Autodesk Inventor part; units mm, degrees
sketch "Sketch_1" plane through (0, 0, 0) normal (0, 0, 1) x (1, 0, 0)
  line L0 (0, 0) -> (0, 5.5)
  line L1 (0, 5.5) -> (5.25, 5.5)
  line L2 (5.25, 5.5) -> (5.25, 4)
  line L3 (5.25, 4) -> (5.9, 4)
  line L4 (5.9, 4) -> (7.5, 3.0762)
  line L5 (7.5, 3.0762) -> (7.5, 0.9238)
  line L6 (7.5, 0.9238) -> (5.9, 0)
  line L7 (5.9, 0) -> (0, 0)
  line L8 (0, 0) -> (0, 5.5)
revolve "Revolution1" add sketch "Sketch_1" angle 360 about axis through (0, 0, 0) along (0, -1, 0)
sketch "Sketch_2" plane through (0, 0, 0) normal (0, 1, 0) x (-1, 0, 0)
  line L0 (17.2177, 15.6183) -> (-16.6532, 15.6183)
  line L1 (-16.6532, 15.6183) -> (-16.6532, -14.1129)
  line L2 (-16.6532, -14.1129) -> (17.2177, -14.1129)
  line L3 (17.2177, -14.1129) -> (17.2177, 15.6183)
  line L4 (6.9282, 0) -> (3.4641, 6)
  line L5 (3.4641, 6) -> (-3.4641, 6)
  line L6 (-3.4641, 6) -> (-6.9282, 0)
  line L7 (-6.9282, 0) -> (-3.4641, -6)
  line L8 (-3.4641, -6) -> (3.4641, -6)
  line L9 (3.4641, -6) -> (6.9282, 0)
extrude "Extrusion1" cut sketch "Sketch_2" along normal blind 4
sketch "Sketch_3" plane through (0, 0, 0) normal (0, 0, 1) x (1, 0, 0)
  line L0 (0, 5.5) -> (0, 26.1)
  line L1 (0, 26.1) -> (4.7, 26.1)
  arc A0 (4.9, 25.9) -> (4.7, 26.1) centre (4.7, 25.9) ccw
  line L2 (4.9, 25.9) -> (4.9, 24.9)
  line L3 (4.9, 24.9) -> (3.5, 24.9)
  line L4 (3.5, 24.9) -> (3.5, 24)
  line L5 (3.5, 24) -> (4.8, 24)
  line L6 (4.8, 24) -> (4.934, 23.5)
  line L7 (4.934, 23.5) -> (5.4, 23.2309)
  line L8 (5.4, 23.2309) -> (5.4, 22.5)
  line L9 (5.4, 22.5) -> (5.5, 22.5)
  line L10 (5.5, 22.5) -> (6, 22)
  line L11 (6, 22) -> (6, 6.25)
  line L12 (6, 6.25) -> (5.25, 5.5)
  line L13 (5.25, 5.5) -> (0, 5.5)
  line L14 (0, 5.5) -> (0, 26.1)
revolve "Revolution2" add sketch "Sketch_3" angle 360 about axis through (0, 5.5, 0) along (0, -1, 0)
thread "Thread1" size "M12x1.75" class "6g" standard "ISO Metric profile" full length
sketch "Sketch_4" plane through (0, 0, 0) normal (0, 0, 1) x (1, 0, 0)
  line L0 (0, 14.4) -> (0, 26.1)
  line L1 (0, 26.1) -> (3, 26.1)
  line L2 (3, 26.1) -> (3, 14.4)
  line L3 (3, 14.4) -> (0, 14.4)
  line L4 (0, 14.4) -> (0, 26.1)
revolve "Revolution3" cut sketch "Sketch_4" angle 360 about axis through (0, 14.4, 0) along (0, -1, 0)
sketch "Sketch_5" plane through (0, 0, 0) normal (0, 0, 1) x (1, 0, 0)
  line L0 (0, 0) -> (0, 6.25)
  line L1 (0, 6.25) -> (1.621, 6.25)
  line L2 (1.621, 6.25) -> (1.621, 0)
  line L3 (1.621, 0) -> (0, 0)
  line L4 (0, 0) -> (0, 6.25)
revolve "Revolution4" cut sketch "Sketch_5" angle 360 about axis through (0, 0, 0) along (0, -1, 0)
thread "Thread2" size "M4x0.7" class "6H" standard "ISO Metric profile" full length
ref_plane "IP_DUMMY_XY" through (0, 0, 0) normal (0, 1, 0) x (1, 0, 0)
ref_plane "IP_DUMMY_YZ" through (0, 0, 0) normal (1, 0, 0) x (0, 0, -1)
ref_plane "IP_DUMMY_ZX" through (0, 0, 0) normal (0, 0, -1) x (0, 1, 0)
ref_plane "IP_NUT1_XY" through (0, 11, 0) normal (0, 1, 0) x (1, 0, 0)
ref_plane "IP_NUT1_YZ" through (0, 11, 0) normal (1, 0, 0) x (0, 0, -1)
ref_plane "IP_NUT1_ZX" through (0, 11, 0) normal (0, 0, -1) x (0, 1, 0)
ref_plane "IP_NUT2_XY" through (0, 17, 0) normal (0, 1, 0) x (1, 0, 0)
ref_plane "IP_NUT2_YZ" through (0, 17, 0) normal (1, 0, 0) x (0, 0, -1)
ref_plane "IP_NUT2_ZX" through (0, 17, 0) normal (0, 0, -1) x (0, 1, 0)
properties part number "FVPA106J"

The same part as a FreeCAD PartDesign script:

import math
import FreeCAD as App
import Part
import Sketcher

V = App.Vector
Q = App.Units.Quantity

doc = App.newDocument("Part")
params = doc.addObject("Spreadsheet::Sheet", "Params")
for row, (alias, value) in enumerate([
    ("sketch1_width", "5.9 mm"),
    ("sketch1_height", "5.5 mm"),
    ("sketch1_height2", "1.5 mm"),
    ("sketch1_width2", "0.65 mm"),
    ("revolution_angle", "360 deg"),
    ("pocket1_length", "4 mm"),
    ("sketch3_radius", "0.2 mm"),
    ("sketch3_height", "1 mm"),
    ("sketch3_width", "0.1 mm"),
    ("sketch3_width2", "1.3 mm"),
    ("sketch3_width3", "1.4 mm"),
    ("revolution2_angle", "360 deg"),
    ("sketch4_width", "3 mm"),
    ("sketch4_height", "11.7 mm"),
    ("groove_angle", "360 deg"),
    ("sketch5_height", "6.25 mm"),
    ("groove2_angle", "360 deg"),
], start=1):
    params.set(f"A{row}", alias)
    params.set(f"B{row}", "=" + value)
    params.setAlias(f"B{row}", alias)

body = doc.addObject("PartDesign::Body", "Body")

sketch1 = body.newObject("Sketcher::SketchObject", "Sketch")
sketch1.AttachmentSupport = (doc.getObject("XY_Plane"), [""])
sketch1.MapMode = "FlatFace"
sketch1.addGeometry(Part.LineSegment(V(0, 5.5, 0), V(0, 0, 0)), False)
sketch1.addGeometry(Part.LineSegment(V(0, 0, 0), V(5.9, 0, 0)), False)
sketch1.addGeometry(Part.LineSegment(V(5.9, 0, 0), V(7.5, 0.9238, 0)), False)
sketch1.addGeometry(Part.LineSegment(V(7.5, 0.9238, 0), V(7.5, 3.0762, 0)), False)
sketch1.addGeometry(Part.LineSegment(V(7.5, 3.0762, 0), V(5.9, 4, 0)), False)
sketch1.addGeometry(Part.LineSegment(V(5.9, 4, 0), V(5.25, 4, 0)), False)
sketch1.addGeometry(Part.LineSegment(V(5.25, 4, 0), V(5.25, 5.5, 0)), False)
sketch1.addGeometry(Part.LineSegment(V(5.25, 5.5, 0), V(0, 5.5, 0)), False)
sketch1.addConstraint(Sketcher.Constraint("Coincident", 0, 2, 1, 1))
sketch1.addConstraint(Sketcher.Constraint("Coincident", 1, 2, 2, 1))
sketch1.addConstraint(Sketcher.Constraint("Coincident", 2, 2, 3, 1))
sketch1.addConstraint(Sketcher.Constraint("Coincident", 3, 2, 4, 1))
sketch1.addConstraint(Sketcher.Constraint("Coincident", 4, 2, 5, 1))
sketch1.addConstraint(Sketcher.Constraint("Coincident", 5, 2, 6, 1))
sketch1.addConstraint(Sketcher.Constraint("Coincident", 6, 2, 7, 1))
sketch1.addConstraint(Sketcher.Constraint("Coincident", 7, 2, 0, 1))
sketch1.addConstraint(Sketcher.Constraint("Vertical", 0))
sketch1.addConstraint(Sketcher.Constraint("Horizontal", 1))
sketch1.addConstraint(Sketcher.Constraint("Vertical", 3))
sketch1.addConstraint(Sketcher.Constraint("Horizontal", 5))
sketch1.addConstraint(Sketcher.Constraint("Vertical", 6))
sketch1.addConstraint(Sketcher.Constraint("Horizontal", 7))
sketch1.addConstraint(Sketcher.Constraint("Coincident", 0, 2, -1, 1))
sketch1.addConstraint(Sketcher.Constraint("Vertical", 1, 2, 4, 2))
sketch1.addConstraint(Sketcher.Constraint("Equal", 2, 4))
sketch1.addConstraint(Sketcher.Constraint("Angle", 2, Q("30.001 deg")))
sketch1.addConstraint(Sketcher.Constraint("DistanceX", 1, 1, 1, 2, Q("5.9 mm")))
sketch1.addConstraint(Sketcher.Constraint("DistanceY", 0, 2, 0, 1, Q("5.5 mm")))
sketch1.addConstraint(Sketcher.Constraint("DistanceY", 6, 1, 6, 2, Q("1.5 mm")))
sketch1.addConstraint(Sketcher.Constraint("DistanceX", 5, 2, 5, 1, Q("0.65 mm")))
sketch1.addConstraint(Sketcher.Constraint("DistanceX", -1, 1, 2, 2, Q("7.5 mm")))
sketch1.setExpression("Constraints[18]", "Params.sketch1_width")
sketch1.setExpression("Constraints[19]", "Params.sketch1_height")
sketch1.setExpression("Constraints[20]", "Params.sketch1_height2")
sketch1.setExpression("Constraints[21]", "Params.sketch1_width2")
revolution = body.newObject("PartDesign::Revolution", "Revolution")
revolution.Profile = sketch1
revolution.ReferenceAxis = (sketch1, ["V_Axis"])
revolution.setExpression("Angle", "Params.revolution_angle")

sketch2 = body.newObject("Sketcher::SketchObject", "Sketch001")
sketch2.AttachmentSupport = (doc.getObject("XZ_Plane"), [""])
sketch2.MapMode = "FlatFace"
sketch2.addGeometry(Part.LineSegment(V(-17.2177, -14.1129, 0), V(-17.2177, 15.6183, 0)), False)
sketch2.addGeometry(Part.LineSegment(V(-17.2177, 15.6183, 0), V(16.6532, 15.6183, 0)), False)
sketch2.addGeometry(Part.LineSegment(V(16.6532, 15.6183, 0), V(16.6532, -14.1129, 0)), False)
sketch2.addGeometry(Part.LineSegment(V(16.6532, -14.1129, 0), V(-17.2177, -14.1129, 0)), False)
sketch2.addGeometry(Part.LineSegment(V(-3.4641, 6, 0), V(-6.9282, 0, 0)), False)
sketch2.addGeometry(Part.LineSegment(V(-6.9282, 0, 0), V(-3.4641, -6, 0)), False)
sketch2.addGeometry(Part.LineSegment(V(-3.4641, -6, 0), V(3.4641, -6, 0)), False)
sketch2.addGeometry(Part.LineSegment(V(3.4641, -6, 0), V(6.9282, 0, 0)), False)
sketch2.addGeometry(Part.LineSegment(V(6.9282, 0, 0), V(3.4641, 6, 0)), False)
sketch2.addGeometry(Part.LineSegment(V(3.4641, 6, 0), V(-3.4641, 6, 0)), False)
sketch2.addConstraint(Sketcher.Constraint("Coincident", 0, 2, 1, 1))
sketch2.addConstraint(Sketcher.Constraint("Coincident", 1, 2, 2, 1))
sketch2.addConstraint(Sketcher.Constraint("Coincident", 2, 2, 3, 1))
sketch2.addConstraint(Sketcher.Constraint("Coincident", 3, 2, 0, 1))
sketch2.addConstraint(Sketcher.Constraint("Coincident", 4, 2, 5, 1))
sketch2.addConstraint(Sketcher.Constraint("Coincident", 5, 2, 6, 1))
sketch2.addConstraint(Sketcher.Constraint("Coincident", 6, 2, 7, 1))
sketch2.addConstraint(Sketcher.Constraint("Coincident", 7, 2, 8, 1))
sketch2.addConstraint(Sketcher.Constraint("Coincident", 8, 2, 9, 1))
sketch2.addConstraint(Sketcher.Constraint("Coincident", 9, 2, 4, 1))
sketch2.addConstraint(Sketcher.Constraint("Vertical", 0))
sketch2.addConstraint(Sketcher.Constraint("Horizontal", 1))
sketch2.addConstraint(Sketcher.Constraint("Vertical", 2))
sketch2.addConstraint(Sketcher.Constraint("Horizontal", 3))
sketch2.addConstraint(Sketcher.Constraint("Horizontal", 6))
sketch2.addConstraint(Sketcher.Constraint("Horizontal", 9))
sketch2.addConstraint(Sketcher.Constraint("Symmetric", 4, 2, 7, 2, -1, 1))
sketch2.addConstraint(Sketcher.Constraint("Symmetric", 5, 2, 8, 2, -1, 1))
sketch2.addConstraint(Sketcher.Constraint("PointOnObject", 4, 2, -1))
sketch2.addConstraint(Sketcher.Constraint("Parallel", 4, 7))
sketch2.addConstraint(Sketcher.Constraint("Vertical", 6, 2, 8, 2))
sketch2.addConstraint(Sketcher.Constraint("Angle", 4, Q("-120 deg")))
sketch2.addConstraint(Sketcher.Constraint("DistanceY", 5, 2, -1, 1, Q("6 mm")))
sketch2.addConstraint(Sketcher.Constraint("DistanceX", 1, 1, 1, 2, Q("33.871 mm")))
sketch2.addConstraint(Sketcher.Constraint("DistanceX", 6, 1, 6, 2, Q("6.9282 mm")))
sketch2.addConstraint(Sketcher.Constraint("DistanceY", 0, 1, 0, 2, Q("29.7312 mm")))
sketch2.addConstraint(Sketcher.Constraint("DistanceY", 2, 2, -1, 1, Q("14.113 mm")))
sketch2.addConstraint(Sketcher.Constraint("DistanceX", 6, 2, 2, 2, Q("13.189 mm")))
pocket1 = body.newObject("PartDesign::Pocket", "Pocket")
pocket1.Profile = sketch2
pocket1.setExpression("Length", "Params.pocket1_length")

sketch3 = body.newObject("Sketcher::SketchObject", "Sketch002")
sketch3.AttachmentSupport = (doc.getObject("XY_Plane"), [""])
sketch3.MapMode = "FlatFace"
sketch3.addGeometry(Part.LineSegment(V(0, 26.1, 0), V(0, 5.5, 0)), False)
sketch3.addGeometry(Part.LineSegment(V(0, 5.5, 0), V(5.25, 5.5, 0)), False)
sketch3.addGeometry(Part.LineSegment(V(5.25, 5.5, 0), V(6, 6.25, 0)), False)
sketch3.addGeometry(Part.LineSegment(V(6, 6.25, 0), V(6, 22, 0)), False)
sketch3.addGeometry(Part.LineSegment(V(6, 22, 0), V(5.5, 22.5, 0)), False)
sketch3.addGeometry(Part.LineSegment(V(5.5, 22.5, 0), V(5.4, 22.5, 0)), False)
sketch3.addGeometry(Part.LineSegment(V(5.4, 22.5, 0), V(5.4, 23.2309, 0)), False)
sketch3.addGeometry(Part.LineSegment(V(5.4, 23.2309, 0), V(4.934, 23.5, 0)), False)
sketch3.addGeometry(Part.LineSegment(V(4.934, 23.5, 0), V(4.8, 24, 0)), False)
sketch3.addGeometry(Part.LineSegment(V(4.8, 24, 0), V(3.5, 24, 0)), False)
sketch3.addGeometry(Part.LineSegment(V(3.5, 24, 0), V(3.5, 24.9, 0)), False)
sketch3.addGeometry(Part.LineSegment(V(3.5, 24.9, 0), V(4.9, 24.9, 0)), False)
sketch3.addGeometry(Part.LineSegment(V(4.9, 24.9, 0), V(4.9, 25.9, 0)), False)
sketch3.addGeometry(Part.ArcOfCircle(Part.Circle(V(4.7, 25.9, 0), V(0, 0, 1), 0.2), math.radians(0), math.radians(90)), False)
sketch3.addGeometry(Part.LineSegment(V(4.7, 26.1, 0), V(0, 26.1, 0)), False)
sketch3.addConstraint(Sketcher.Constraint("Coincident", 0, 2, 1, 1))
sketch3.addConstraint(Sketcher.Constraint("Coincident", 1, 2, 2, 1))
sketch3.addConstraint(Sketcher.Constraint("Coincident", 2, 2, 3, 1))
sketch3.addConstraint(Sketcher.Constraint("Coincident", 3, 2, 4, 1))
sketch3.addConstraint(Sketcher.Constraint("Coincident", 4, 2, 5, 1))
sketch3.addConstraint(Sketcher.Constraint("Coincident", 5, 2, 6, 1))
sketch3.addConstraint(Sketcher.Constraint("Coincident", 6, 2, 7, 1))
sketch3.addConstraint(Sketcher.Constraint("Coincident", 7, 2, 8, 1))
sketch3.addConstraint(Sketcher.Constraint("Coincident", 8, 2, 9, 1))
sketch3.addConstraint(Sketcher.Constraint("Coincident", 9, 2, 10, 1))
sketch3.addConstraint(Sketcher.Constraint("Coincident", 10, 2, 11, 1))
sketch3.addConstraint(Sketcher.Constraint("Coincident", 11, 2, 12, 1))
sketch3.addConstraint(Sketcher.Constraint("Tangent", 12, 2, 13, 1))
sketch3.addConstraint(Sketcher.Constraint("Tangent", 13, 2, 14, 1))
sketch3.addConstraint(Sketcher.Constraint("Coincident", 14, 2, 0, 1))
sketch3.addConstraint(Sketcher.Constraint("Vertical", 0))
sketch3.addConstraint(Sketcher.Constraint("Horizontal", 1))
sketch3.addConstraint(Sketcher.Constraint("Vertical", 3))
sketch3.addConstraint(Sketcher.Constraint("Horizontal", 5))
sketch3.addConstraint(Sketcher.Constraint("Vertical", 6))
sketch3.addConstraint(Sketcher.Constraint("Horizontal", 9))
sketch3.addConstraint(Sketcher.Constraint("Vertical", 10))
sketch3.addConstraint(Sketcher.Constraint("Horizontal", 11))
sketch3.addConstraint(Sketcher.Constraint("Vertical", 12))
sketch3.addConstraint(Sketcher.Constraint("Horizontal", 14))
sketch3.addConstraint(Sketcher.Constraint("PointOnObject", 0, 2, -2))
sketch3.addConstraint(Sketcher.Constraint("Perpendicular", 2, 4))
sketch3.addConstraint(Sketcher.Constraint("Radius", 13, Q("0.2 mm")))
sketch3.addConstraint(Sketcher.Constraint("DistanceY", 12, 1, 12, 2, Q("1 mm")))
sketch3.addConstraint(Sketcher.Constraint("Angle", 2, Q("45 deg")))
sketch3.addConstraint(Sketcher.Constraint("DistanceX", 5, 2, 5, 1, Q("0.1 mm")))
sketch3.addConstraint(Sketcher.Constraint("DistanceX", 9, 2, 9, 1, Q("1.3 mm")))
sketch3.addConstraint(Sketcher.Constraint("DistanceX", 11, 1, 11, 2, Q("1.4 mm")))
sketch3.addConstraint(Sketcher.Constraint("DistanceX", 14, 2, 14, 1, Q("4.7 mm")))
sketch3.addConstraint(Sketcher.Constraint("DistanceY", 0, 2, 0, 1, Q("20.6 mm")))
sketch3.addConstraint(Sketcher.Constraint("DistanceY", 10, 1, 10, 2, Q("0.9 mm")))
sketch3.addConstraint(Sketcher.Constraint("DistanceX", -1, 1, 2, 2, Q("6 mm")))
sketch3.addConstraint(Sketcher.Constraint("DistanceY", -1, 1, 3, 2, Q("22 mm")))
sketch3.addConstraint(Sketcher.Constraint("DistanceY", -1, 1, 8, 2, Q("24 mm")))
sketch3.addConstraint(Sketcher.Constraint("DistanceY", 1, 2, 4, 2, Q("17 mm")))
sketch3.addConstraint(Sketcher.Constraint("DistanceY", 5, 2, 7, 2, Q("1 mm")))
sketch3.addConstraint(Sketcher.Constraint("DistanceX", 1, 1, 1, 2, Q("5.25 mm")))
sketch3.addConstraint(Sketcher.Constraint("DistanceY", 6, 1, 6, 2, Q("0.731 mm")))
sketch3.addConstraint(Sketcher.Constraint("Distance", 7, Q("0.538 mm")))
sketch3.setExpression("Constraints[27]", "Params.sketch3_radius")
sketch3.setExpression("Constraints[28]", "Params.sketch3_height")
sketch3.setExpression("Constraints[30]", "Params.sketch3_width")
sketch3.setExpression("Constraints[31]", "Params.sketch3_width2")
sketch3.setExpression("Constraints[32]", "Params.sketch3_width3")
revolution2 = body.newObject("PartDesign::Revolution", "Revolution001")
revolution2.Profile = sketch3
revolution2.ReferenceAxis = (sketch3, ["V_Axis"])
revolution2.setExpression("Angle", "Params.revolution2_angle")

sketch4 = body.newObject("Sketcher::SketchObject", "Sketch003")
sketch4.AttachmentSupport = (doc.getObject("XY_Plane"), [""])
sketch4.MapMode = "FlatFace"
sketch4.addGeometry(Part.LineSegment(V(0, 26.1, 0), V(0, 14.4, 0)), False)
sketch4.addGeometry(Part.LineSegment(V(0, 14.4, 0), V(3, 14.4, 0)), False)
sketch4.addGeometry(Part.LineSegment(V(3, 14.4, 0), V(3, 26.1, 0)), False)
sketch4.addGeometry(Part.LineSegment(V(3, 26.1, 0), V(0, 26.1, 0)), False)
sketch4.addConstraint(Sketcher.Constraint("Coincident", 0, 2, 1, 1))
sketch4.addConstraint(Sketcher.Constraint("Coincident", 1, 2, 2, 1))
sketch4.addConstraint(Sketcher.Constraint("Coincident", 2, 2, 3, 1))
sketch4.addConstraint(Sketcher.Constraint("Coincident", 3, 2, 0, 1))
sketch4.addConstraint(Sketcher.Constraint("Vertical", 0))
sketch4.addConstraint(Sketcher.Constraint("Horizontal", 1))
sketch4.addConstraint(Sketcher.Constraint("Vertical", 2))
sketch4.addConstraint(Sketcher.Constraint("Horizontal", 3))
sketch4.addConstraint(Sketcher.Constraint("PointOnObject", 0, 2, -2))
sketch4.addConstraint(Sketcher.Constraint("DistanceX", 1, 1, 1, 2, Q("3 mm")))
sketch4.addConstraint(Sketcher.Constraint("DistanceY", 0, 2, 0, 1, Q("11.7 mm")))
sketch4.addConstraint(Sketcher.Constraint("DistanceY", -1, 1, 0, 2, Q("14.4 mm")))
sketch4.setExpression("Constraints[9]", "Params.sketch4_width")
sketch4.setExpression("Constraints[10]", "Params.sketch4_height")
groove = body.newObject("PartDesign::Groove", "Groove")
groove.Profile = sketch4
groove.ReferenceAxis = (sketch4, ["V_Axis"])
groove.setExpression("Angle", "Params.groove_angle")

sketch5 = body.newObject("Sketcher::SketchObject", "Sketch004")
sketch5.AttachmentSupport = (doc.getObject("XY_Plane"), [""])
sketch5.MapMode = "FlatFace"
sketch5.addGeometry(Part.LineSegment(V(0, 6.25, 0), V(0, 0, 0)), False)
sketch5.addGeometry(Part.LineSegment(V(0, 0, 0), V(1.621, 0, 0)), False)
sketch5.addGeometry(Part.LineSegment(V(1.621, 0, 0), V(1.621, 6.25, 0)), False)
sketch5.addGeometry(Part.LineSegment(V(1.621, 6.25, 0), V(0, 6.25, 0)), False)
sketch5.addConstraint(Sketcher.Constraint("Coincident", 0, 2, 1, 1))
sketch5.addConstraint(Sketcher.Constraint("Coincident", 1, 2, 2, 1))
sketch5.addConstraint(Sketcher.Constraint("Coincident", 2, 2, 3, 1))
sketch5.addConstraint(Sketcher.Constraint("Coincident", 3, 2, 0, 1))
sketch5.addConstraint(Sketcher.Constraint("Vertical", 0))
sketch5.addConstraint(Sketcher.Constraint("Horizontal", 1))
sketch5.addConstraint(Sketcher.Constraint("Vertical", 2))
sketch5.addConstraint(Sketcher.Constraint("Horizontal", 3))
sketch5.addConstraint(Sketcher.Constraint("Coincident", 0, 2, -1, 1))
sketch5.addConstraint(Sketcher.Constraint("DistanceY", 0, 2, 0, 1, Q("6.25 mm")))
sketch5.addConstraint(Sketcher.Constraint("DistanceX", 1, 1, 1, 2, Q("1.621 mm")))
sketch5.setExpression("Constraints[9]", "Params.sketch5_height")
groove2 = body.newObject("PartDesign::Groove", "Groove001")
groove2.Profile = sketch5
groove2.ReferenceAxis = (sketch5, ["V_Axis"])
groove2.setExpression("Angle", "Params.groove2_angle")

doc.recompute()
